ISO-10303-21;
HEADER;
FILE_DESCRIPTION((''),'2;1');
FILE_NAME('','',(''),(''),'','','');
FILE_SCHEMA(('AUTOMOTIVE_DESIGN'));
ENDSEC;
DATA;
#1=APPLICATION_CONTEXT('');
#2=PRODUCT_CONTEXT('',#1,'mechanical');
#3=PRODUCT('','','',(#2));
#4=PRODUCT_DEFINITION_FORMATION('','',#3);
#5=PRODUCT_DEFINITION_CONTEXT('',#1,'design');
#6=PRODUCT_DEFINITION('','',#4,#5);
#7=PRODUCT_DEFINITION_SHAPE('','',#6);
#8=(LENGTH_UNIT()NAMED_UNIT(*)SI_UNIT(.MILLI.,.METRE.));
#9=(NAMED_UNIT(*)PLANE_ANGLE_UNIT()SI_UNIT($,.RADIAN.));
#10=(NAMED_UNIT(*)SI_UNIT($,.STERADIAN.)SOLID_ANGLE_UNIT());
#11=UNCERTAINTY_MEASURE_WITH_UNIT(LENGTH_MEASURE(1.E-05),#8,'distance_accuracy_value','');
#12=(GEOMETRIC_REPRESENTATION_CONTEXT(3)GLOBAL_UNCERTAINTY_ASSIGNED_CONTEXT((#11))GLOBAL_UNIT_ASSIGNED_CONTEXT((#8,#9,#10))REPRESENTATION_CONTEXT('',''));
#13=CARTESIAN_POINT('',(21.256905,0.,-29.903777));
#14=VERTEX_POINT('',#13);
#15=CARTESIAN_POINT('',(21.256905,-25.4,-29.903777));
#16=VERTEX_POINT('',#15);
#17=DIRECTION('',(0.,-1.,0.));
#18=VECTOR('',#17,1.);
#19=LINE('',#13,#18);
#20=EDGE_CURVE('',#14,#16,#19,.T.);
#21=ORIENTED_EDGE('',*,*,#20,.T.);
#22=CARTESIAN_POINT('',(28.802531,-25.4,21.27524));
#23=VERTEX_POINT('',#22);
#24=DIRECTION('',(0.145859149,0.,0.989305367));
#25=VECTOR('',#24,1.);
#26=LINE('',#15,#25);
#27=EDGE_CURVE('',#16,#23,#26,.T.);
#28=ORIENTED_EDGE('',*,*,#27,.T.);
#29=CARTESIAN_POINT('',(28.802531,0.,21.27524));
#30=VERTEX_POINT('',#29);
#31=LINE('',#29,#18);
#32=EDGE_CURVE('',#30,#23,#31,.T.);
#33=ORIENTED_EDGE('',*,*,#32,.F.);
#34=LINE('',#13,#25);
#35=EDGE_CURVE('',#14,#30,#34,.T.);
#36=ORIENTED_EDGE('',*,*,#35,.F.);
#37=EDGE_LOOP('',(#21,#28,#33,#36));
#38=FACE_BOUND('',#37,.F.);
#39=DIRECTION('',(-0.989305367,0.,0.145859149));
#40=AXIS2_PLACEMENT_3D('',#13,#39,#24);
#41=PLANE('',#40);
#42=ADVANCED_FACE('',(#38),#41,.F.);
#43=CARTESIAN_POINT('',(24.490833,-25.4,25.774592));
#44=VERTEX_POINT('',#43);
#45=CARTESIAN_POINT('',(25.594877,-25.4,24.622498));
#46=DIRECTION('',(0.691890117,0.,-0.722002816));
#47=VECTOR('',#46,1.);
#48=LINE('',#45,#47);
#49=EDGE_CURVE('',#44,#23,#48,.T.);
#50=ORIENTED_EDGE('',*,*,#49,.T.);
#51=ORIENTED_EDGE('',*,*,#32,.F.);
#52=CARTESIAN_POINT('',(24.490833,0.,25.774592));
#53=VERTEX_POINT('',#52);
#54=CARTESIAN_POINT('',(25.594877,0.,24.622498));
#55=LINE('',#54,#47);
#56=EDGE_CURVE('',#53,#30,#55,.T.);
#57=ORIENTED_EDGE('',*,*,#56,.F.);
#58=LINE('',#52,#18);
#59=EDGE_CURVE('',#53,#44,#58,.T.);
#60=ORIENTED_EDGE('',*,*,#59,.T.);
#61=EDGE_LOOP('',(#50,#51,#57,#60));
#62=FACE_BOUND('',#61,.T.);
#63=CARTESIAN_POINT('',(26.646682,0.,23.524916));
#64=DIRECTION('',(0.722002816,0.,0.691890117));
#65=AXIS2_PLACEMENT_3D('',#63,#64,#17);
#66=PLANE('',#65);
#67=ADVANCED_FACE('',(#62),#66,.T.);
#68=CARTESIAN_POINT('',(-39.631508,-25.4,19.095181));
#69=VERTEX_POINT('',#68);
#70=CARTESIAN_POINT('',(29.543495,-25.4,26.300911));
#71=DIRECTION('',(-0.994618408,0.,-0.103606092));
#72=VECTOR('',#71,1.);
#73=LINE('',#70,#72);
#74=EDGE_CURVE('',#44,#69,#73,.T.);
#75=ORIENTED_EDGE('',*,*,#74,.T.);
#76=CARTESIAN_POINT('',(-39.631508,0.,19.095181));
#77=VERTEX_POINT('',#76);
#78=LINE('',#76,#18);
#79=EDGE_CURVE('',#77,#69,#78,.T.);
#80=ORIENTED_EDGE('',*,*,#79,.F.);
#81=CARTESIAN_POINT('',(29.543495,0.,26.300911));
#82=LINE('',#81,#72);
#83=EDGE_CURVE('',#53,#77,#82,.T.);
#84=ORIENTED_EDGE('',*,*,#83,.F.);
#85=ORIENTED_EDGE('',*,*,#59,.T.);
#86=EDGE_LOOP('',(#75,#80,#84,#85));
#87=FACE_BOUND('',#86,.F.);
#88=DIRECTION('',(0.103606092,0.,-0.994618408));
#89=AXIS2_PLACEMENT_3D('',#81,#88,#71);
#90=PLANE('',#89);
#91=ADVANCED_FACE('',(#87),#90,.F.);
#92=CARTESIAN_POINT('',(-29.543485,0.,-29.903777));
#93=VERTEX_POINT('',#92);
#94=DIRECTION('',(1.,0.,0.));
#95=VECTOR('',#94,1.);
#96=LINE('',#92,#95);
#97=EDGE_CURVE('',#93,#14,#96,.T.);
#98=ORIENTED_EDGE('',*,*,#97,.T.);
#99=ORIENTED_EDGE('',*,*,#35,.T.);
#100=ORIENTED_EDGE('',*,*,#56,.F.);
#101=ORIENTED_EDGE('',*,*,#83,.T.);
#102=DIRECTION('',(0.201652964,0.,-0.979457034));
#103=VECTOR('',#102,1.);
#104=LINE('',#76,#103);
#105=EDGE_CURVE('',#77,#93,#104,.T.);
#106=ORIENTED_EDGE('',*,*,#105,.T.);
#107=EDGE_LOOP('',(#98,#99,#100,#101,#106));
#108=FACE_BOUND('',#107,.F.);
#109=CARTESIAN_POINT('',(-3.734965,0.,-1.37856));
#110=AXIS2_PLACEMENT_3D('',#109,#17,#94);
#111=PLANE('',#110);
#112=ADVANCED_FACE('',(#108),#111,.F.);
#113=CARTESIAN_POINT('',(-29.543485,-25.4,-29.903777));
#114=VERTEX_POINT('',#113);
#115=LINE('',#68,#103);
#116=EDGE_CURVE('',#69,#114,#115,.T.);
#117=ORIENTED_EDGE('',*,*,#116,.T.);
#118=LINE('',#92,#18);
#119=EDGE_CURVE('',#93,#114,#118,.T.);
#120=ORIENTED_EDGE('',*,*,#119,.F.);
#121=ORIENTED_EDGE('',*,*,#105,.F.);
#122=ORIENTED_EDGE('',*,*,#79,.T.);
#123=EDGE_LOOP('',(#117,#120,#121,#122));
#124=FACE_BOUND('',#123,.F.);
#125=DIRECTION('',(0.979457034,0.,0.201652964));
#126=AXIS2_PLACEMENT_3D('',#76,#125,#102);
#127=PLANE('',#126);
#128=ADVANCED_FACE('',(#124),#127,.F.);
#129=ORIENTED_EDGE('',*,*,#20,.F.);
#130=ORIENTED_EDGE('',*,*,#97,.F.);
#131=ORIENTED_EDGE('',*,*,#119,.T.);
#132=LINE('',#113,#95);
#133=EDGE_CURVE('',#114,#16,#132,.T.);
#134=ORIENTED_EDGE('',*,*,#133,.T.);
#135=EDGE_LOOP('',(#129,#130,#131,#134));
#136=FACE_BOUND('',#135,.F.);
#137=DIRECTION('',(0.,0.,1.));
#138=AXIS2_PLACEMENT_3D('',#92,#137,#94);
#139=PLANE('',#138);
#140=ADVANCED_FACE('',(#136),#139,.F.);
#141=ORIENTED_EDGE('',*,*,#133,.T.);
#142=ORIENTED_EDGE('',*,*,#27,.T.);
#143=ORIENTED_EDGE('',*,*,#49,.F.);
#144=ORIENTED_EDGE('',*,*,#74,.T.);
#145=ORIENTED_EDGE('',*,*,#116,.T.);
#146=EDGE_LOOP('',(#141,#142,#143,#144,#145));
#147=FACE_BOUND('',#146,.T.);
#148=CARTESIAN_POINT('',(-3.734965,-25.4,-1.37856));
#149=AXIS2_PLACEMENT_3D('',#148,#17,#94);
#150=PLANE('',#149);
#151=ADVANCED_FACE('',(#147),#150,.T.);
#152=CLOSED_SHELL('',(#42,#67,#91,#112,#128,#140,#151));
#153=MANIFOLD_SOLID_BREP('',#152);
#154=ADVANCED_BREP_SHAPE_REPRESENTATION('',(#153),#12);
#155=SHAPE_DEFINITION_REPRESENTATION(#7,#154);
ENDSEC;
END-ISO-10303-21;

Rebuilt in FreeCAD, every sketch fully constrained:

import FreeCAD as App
import Part
import Sketcher
Q = App.Units.Quantity


def edges_at(feature, points):
    """Names of the edges that pass closest to the given points."""
    edges = feature.Shape.Edges
    near = lambda p: min(range(len(edges)), key=lambda i: edges[i].distToShape(Part.Vertex(*p))[0])
    return sorted({f"Edge{near(p) + 1}" for p in points})


def add_polygon(sketch, points):
    """Adds a closed chain of lines whose ends are joined by coincident constraints."""
    first, n = sketch.GeometryCount, len(points)
    for a, b in zip(points, points[1:] + points[:1]):
        sketch.addGeometry(Part.LineSegment(App.Vector(*a, 0), App.Vector(*b, 0)), False)
    for i in range(n):
        sketch.addConstraint(Sketcher.Constraint("Coincident", first + i, 2, first + (i + 1) % n, 1))

doc = App.newDocument("Part")
body = doc.addObject("PartDesign::Body", "Body")

# Sketch on XZ plane
sketch1 = body.newObject("Sketcher::SketchObject", "Sketch")
sketch1.AttachmentSupport = (doc.getObject("XZ_Plane"), [""])
sketch1.MapMode = "FlatFace"
add_polygon(sketch1, [(29.543495, 26.300911), (-39.631508, 19.095181), (-29.543485, -29.903777), (21.256905, -29.903777)])  # lines 0-3
sketch1.addConstraint([
    Sketcher.Constraint("Horizontal", 2),
    Sketcher.Constraint("DistanceX", 2, 1, 2, 2, Q("50.80039 mm")),
    Sketcher.Constraint("Distance", 0, Q("69.549289 mm")),
    Sketcher.Constraint("DistanceY", -1, 1, 0, 2, Q("19.095181 mm")),
    Sketcher.Constraint("DistanceY", -1, 1, 3, 2, Q("26.300911 mm")),
    Sketcher.Constraint("DistanceY", 1, 2, 0, 2, Q("48.998958 mm")),
    Sketcher.Constraint("DistanceX", 2, 2, 3, 2, Q("8.28659 mm")),
    Sketcher.Constraint("DistanceX", 0, 2, -1, 1, Q("39.631508 mm")),
])
pad1 = body.newObject("PartDesign::Pad", "Pad")
pad1.Profile = sketch1
pad1.Length = Q("1 in")
doc.recompute()

chamfer = body.newObject("PartDesign::Chamfer", "Chamfer")
chamfer.Base = (pad1, edges_at(pad1, [(29.543, -12.7, 26.301)]))
chamfer.Size = Q("0.2 in")

doc.recompute()
